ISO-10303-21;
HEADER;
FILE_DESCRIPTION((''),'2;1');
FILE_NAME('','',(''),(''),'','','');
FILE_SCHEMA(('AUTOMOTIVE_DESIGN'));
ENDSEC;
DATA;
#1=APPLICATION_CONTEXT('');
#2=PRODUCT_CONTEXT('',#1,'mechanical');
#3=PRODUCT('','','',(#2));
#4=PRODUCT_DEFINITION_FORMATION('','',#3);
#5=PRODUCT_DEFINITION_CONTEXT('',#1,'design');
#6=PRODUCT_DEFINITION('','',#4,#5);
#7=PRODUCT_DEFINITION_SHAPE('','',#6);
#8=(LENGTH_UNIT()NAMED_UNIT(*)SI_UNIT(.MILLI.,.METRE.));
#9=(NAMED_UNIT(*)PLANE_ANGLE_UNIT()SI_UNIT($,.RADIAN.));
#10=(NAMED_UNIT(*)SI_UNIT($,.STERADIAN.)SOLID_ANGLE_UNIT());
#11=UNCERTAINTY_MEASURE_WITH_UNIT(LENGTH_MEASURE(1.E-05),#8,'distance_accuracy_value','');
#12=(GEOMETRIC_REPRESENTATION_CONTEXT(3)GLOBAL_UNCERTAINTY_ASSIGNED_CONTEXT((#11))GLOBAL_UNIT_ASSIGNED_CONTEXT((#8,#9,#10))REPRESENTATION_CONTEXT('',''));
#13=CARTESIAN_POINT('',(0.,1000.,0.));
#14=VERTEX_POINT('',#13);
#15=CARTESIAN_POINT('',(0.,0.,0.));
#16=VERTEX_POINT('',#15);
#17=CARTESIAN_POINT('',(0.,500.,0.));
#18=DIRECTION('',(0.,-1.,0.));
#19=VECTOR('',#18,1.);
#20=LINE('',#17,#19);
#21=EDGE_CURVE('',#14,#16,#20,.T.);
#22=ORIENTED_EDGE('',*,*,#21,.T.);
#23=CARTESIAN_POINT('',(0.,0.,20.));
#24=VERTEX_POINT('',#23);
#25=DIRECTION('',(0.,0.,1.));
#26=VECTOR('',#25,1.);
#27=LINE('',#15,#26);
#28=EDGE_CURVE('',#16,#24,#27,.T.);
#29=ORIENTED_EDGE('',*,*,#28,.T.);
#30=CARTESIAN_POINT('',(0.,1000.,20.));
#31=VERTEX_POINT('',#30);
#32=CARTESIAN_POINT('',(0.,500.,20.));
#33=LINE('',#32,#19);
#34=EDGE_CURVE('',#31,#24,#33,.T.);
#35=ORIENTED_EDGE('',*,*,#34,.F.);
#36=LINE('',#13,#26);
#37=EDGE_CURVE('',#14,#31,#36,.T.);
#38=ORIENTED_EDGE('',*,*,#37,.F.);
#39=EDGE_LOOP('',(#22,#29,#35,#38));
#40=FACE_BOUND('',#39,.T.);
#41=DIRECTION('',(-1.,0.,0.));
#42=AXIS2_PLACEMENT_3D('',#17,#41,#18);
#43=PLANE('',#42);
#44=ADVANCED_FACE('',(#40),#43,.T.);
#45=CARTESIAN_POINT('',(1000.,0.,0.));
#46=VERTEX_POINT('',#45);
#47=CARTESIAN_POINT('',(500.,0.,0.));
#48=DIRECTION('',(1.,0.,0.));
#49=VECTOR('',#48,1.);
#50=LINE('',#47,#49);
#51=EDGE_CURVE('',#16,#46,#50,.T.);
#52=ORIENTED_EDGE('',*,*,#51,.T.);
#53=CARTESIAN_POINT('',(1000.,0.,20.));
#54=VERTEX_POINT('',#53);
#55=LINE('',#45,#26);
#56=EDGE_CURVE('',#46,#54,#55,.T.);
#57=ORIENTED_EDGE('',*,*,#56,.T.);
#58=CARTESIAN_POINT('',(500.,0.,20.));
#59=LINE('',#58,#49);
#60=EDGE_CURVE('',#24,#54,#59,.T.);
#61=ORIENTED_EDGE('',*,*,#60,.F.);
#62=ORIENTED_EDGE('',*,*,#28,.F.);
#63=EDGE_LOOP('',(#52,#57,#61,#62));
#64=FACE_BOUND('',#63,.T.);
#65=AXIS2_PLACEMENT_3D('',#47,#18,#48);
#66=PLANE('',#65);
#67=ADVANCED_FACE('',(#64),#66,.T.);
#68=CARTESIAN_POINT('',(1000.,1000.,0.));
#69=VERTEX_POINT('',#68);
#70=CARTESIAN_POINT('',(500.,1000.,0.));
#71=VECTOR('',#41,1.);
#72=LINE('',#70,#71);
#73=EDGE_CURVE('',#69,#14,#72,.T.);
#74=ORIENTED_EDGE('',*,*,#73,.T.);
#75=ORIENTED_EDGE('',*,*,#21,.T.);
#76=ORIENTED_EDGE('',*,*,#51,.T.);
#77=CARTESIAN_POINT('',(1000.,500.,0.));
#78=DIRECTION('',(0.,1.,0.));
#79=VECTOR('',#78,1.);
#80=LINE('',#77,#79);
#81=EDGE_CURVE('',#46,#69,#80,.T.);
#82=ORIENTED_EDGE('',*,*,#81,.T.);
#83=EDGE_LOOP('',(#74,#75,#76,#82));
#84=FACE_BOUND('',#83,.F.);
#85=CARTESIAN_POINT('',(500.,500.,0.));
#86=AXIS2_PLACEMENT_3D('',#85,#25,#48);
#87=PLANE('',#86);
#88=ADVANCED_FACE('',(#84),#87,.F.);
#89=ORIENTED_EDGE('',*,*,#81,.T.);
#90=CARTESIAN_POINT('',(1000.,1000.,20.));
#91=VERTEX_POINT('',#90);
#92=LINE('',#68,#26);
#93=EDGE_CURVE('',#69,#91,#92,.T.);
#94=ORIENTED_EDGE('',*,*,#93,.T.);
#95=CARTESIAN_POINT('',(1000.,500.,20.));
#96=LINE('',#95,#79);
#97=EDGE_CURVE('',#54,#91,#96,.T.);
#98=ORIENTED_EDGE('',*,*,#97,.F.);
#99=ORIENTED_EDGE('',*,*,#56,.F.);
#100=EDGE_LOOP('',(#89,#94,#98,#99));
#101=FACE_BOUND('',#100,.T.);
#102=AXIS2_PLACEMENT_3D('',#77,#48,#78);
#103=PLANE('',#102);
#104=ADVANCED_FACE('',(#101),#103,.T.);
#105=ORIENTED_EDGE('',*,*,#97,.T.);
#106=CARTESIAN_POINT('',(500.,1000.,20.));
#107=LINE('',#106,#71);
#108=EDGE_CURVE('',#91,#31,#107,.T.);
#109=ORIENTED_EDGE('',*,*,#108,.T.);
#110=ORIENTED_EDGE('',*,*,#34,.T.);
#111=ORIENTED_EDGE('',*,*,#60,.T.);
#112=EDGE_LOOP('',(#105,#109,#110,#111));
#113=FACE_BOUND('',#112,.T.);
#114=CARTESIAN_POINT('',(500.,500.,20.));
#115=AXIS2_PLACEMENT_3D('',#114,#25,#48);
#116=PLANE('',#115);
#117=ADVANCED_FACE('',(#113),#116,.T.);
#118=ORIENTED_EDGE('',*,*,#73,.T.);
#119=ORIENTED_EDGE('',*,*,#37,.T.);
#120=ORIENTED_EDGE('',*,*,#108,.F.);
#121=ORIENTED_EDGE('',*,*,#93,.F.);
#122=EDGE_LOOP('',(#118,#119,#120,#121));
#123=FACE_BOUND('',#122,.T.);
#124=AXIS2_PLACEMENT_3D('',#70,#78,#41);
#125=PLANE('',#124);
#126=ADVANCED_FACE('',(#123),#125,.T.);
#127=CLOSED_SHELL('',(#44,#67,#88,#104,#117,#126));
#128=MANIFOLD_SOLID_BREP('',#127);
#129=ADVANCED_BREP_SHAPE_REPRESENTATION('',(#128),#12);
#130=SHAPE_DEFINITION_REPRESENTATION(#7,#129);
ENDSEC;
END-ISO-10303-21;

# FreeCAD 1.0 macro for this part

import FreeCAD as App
import Part
import Sketcher

doc = App.newDocument("Part")
body = doc.addObject("PartDesign::Body", "Body")

sketch1 = doc.addObject("Sketcher::SketchObject", "Sketch")
body.addObject(sketch1)
sketch1.AttachmentSupport = (doc.XY_Plane, [""])
sketch1.MapMode = "FlatFace"
sketch1.addGeometry(Part.LineSegment(App.Vector(0, 1000, 0), App.Vector(0, 0, 0)), False)
sketch1.addGeometry(Part.LineSegment(App.Vector(0, 0, 0), App.Vector(1000, 0, 0)), False)
sketch1.addGeometry(Part.LineSegment(App.Vector(1000, 0, 0), App.Vector(1000, 1000, 0)), False)
sketch1.addGeometry(Part.LineSegment(App.Vector(1000, 1000, 0), App.Vector(0, 1000, 0)), False)
sketch1.addConstraint(Sketcher.Constraint("Coincident", 0, 2, 1, 1))
sketch1.addConstraint(Sketcher.Constraint("Coincident", 1, 2, 2, 1))
sketch1.addConstraint(Sketcher.Constraint("Coincident", 2, 2, 3, 1))
sketch1.addConstraint(Sketcher.Constraint("Coincident", 3, 2, 0, 1))
sketch1.addConstraint(Sketcher.Constraint("Vertical", 0))
sketch1.addConstraint(Sketcher.Constraint("Horizontal", 1))
sketch1.addConstraint(Sketcher.Constraint("Vertical", 2))
sketch1.addConstraint(Sketcher.Constraint("Horizontal", 3))
sketch1.addConstraint(Sketcher.Constraint("Coincident", 0, 2, -1, 1))
sketch1.addConstraint(Sketcher.Constraint("Equal", 3, 0))
sketch1.addConstraint(Sketcher.Constraint("DistanceX", 1, 1, 1, 2, 1000.0))

sketch2 = doc.addObject("Sketcher::SketchObject", "Sketch001")
body.addObject(sketch2)
sketch2.AttachmentSupport = (doc.XZ_Plane, [""])
sketch2.MapMode = "FlatFace"
sketch2.addGeometry(Part.LineSegment(App.Vector(0, 0, 0), App.Vector(0, 20, 0)), False)
sketch2.addConstraint(Sketcher.Constraint("Vertical", 0))
sketch2.addConstraint(Sketcher.Constraint("Coincident", 0, 1, -1, 1))
sketch2.addConstraint(Sketcher.Constraint("DistanceY", 0, 1, 0, 2, 20.0))
doc.recompute()

additivepipe = doc.addObject("PartDesign::AdditivePipe", "AdditivePipe")
body.addObject(additivepipe)
additivepipe.Profile = sketch1
additivepipe.Spine = (sketch2, ["Edge1"])

doc.recompute()
